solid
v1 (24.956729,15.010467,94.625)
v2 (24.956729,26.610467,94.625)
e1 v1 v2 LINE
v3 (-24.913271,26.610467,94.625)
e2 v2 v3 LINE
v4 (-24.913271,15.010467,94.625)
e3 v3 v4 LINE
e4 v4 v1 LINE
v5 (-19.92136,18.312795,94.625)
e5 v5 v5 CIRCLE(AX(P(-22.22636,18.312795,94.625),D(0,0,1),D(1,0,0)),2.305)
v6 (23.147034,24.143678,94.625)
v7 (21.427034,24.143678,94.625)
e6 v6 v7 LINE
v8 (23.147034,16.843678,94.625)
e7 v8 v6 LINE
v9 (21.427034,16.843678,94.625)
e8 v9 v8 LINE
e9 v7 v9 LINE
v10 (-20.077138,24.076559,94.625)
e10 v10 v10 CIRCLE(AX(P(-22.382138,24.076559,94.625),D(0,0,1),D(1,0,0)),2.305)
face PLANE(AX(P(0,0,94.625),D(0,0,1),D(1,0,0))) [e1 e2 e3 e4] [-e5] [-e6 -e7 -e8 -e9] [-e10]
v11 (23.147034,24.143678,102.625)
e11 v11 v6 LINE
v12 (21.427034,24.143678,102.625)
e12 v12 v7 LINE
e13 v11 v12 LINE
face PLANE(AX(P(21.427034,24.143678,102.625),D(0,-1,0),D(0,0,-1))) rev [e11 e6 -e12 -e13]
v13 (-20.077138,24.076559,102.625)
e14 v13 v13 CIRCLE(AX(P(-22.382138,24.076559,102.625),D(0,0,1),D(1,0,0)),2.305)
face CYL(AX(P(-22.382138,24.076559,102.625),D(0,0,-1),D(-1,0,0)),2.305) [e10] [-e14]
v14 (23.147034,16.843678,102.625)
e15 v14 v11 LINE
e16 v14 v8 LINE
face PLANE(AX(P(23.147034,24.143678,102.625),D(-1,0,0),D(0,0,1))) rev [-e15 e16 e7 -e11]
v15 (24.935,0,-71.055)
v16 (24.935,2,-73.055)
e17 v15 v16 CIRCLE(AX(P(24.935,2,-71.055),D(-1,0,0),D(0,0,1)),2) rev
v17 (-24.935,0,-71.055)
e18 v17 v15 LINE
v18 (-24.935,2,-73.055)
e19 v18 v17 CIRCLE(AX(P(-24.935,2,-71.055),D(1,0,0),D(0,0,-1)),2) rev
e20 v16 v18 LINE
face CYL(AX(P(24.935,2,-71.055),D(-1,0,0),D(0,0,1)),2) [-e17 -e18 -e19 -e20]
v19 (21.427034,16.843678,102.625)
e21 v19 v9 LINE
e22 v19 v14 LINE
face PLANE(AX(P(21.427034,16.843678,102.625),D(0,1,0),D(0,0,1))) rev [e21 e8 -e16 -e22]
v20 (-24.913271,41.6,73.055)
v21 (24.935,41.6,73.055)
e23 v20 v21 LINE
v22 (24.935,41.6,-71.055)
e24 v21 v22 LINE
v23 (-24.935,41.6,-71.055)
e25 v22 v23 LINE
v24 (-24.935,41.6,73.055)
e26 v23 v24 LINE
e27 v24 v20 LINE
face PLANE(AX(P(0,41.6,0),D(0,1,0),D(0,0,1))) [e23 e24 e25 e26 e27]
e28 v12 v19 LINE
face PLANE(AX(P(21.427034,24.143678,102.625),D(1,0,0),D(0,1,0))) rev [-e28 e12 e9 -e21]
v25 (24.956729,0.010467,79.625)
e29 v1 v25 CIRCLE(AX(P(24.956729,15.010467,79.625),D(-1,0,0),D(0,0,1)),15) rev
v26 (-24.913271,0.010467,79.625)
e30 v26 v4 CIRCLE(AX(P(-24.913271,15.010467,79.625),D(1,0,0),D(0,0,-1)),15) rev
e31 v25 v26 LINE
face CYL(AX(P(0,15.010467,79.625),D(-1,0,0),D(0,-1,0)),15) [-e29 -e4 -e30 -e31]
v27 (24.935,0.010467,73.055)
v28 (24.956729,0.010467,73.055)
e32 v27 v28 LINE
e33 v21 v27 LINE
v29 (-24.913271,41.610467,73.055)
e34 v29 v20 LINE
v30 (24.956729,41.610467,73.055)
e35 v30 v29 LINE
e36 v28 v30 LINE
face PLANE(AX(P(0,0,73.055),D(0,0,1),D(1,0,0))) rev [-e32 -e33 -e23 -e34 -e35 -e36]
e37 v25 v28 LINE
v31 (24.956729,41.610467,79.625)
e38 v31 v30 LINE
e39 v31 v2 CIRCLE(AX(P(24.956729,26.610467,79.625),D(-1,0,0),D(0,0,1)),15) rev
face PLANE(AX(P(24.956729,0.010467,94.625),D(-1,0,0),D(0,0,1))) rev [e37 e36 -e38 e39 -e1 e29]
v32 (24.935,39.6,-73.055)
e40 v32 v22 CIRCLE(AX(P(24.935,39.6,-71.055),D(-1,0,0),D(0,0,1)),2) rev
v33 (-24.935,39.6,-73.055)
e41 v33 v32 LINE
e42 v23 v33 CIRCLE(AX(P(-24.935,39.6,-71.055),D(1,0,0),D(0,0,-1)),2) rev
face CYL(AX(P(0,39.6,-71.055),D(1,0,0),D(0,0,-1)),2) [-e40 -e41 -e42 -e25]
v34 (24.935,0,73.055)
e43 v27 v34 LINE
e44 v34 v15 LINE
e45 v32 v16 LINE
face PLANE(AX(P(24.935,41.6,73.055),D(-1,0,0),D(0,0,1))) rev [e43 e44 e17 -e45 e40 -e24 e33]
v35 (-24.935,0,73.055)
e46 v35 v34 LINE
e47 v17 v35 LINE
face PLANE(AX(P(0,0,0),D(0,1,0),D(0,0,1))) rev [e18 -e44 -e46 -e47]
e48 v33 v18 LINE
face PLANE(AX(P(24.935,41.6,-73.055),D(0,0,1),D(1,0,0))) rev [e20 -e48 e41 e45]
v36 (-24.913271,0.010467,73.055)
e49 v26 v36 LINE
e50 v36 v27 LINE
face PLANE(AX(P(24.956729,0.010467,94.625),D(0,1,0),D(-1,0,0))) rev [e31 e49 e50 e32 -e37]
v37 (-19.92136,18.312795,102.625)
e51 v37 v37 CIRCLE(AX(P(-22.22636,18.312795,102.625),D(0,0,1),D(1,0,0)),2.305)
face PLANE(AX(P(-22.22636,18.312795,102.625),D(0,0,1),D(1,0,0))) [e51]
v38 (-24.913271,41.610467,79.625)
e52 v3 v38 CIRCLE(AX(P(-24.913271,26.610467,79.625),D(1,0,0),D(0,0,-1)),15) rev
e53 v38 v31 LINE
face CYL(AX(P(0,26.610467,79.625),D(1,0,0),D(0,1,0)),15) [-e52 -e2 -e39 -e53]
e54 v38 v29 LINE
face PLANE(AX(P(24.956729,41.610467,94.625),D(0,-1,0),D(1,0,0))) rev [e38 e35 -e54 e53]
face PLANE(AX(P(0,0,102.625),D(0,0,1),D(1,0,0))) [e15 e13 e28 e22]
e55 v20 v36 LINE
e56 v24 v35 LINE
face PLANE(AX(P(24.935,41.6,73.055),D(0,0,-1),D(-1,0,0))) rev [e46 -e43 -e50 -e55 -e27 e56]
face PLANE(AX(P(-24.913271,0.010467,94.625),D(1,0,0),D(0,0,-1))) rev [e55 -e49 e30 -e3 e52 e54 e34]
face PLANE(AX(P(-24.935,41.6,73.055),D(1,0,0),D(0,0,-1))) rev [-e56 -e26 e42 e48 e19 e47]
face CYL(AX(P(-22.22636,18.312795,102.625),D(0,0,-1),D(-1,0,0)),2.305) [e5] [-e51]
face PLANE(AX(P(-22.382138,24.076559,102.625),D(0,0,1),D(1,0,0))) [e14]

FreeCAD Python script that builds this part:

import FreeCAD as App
import Part
import Sketcher


def edges_at(feature, points):
    """Names of the edges that pass closest to the given points."""
    edges = feature.Shape.Edges
    near = lambda p: min(range(len(edges)), key=lambda i: edges[i].distToShape(Part.Vertex(*p))[0])
    return sorted({f"Edge{near(p) + 1}" for p in points})

doc = App.newDocument("Part")
body = doc.addObject("PartDesign::Body", "Body")

sketch1 = body.newObject("Sketcher::SketchObject", "Sketch")
sketch1.AttachmentSupport = (doc.getObject("XZ_Plane"), [""])
sketch1.MapMode = "FlatFace"
sketch1.addGeometry(Part.LineSegment(App.Vector(-25, -73, 0), App.Vector(-25, 73, 0)), False)
sketch1.addGeometry(Part.LineSegment(App.Vector(-25, 73, 0), App.Vector(25, 73, 0)), False)
sketch1.addGeometry(Part.LineSegment(App.Vector(25, 73, 0), App.Vector(25, -73, 0)), False)
sketch1.addGeometry(Part.LineSegment(App.Vector(25, -73, 0), App.Vector(-25, -73, 0)), False)
sketch1.addConstraint(Sketcher.Constraint("Coincident", 0, 2, 1, 1))
sketch1.addConstraint(Sketcher.Constraint("Coincident", 1, 2, 2, 1))
sketch1.addConstraint(Sketcher.Constraint("Coincident", 2, 2, 3, 1))
sketch1.addConstraint(Sketcher.Constraint("Coincident", 3, 2, 0, 1))
sketch1.addConstraint(Sketcher.Constraint("Vertical", 0))
sketch1.addConstraint(Sketcher.Constraint("Horizontal", 1))
sketch1.addConstraint(Sketcher.Constraint("Vertical", 2))
sketch1.addConstraint(Sketcher.Constraint("Horizontal", 3))
sketch1.addConstraint(Sketcher.Constraint("Symmetric", 0, 2, 2, 2, -1, 1))
sketch1.addConstraint(Sketcher.Constraint("DistanceX", 1, 1, 1, 2, 49.87))
sketch1.addConstraint(Sketcher.Constraint("DistanceY", 0, 1, 0, 2, 146.11))
pad1 = body.newObject("PartDesign::Pad", "Pad")
pad1.Profile = sketch1
pad1.Length = 41.6
pad1.Reversed = True

sketch2 = body.newObject("Sketcher::SketchObject", "Sketch001")
sketch2.AttachmentSupport = (doc.getObject("XY_Plane"), [""])
sketch2.MapMode = "FlatFace"
sketch2.AttachmentOffset = App.Placement(App.Vector(0, 0, 73.055), App.Rotation())
sketch2.addGeometry(Part.LineSegment(App.Vector(-25, 42, 0), App.Vector(-25, 0, 0)), False)
sketch2.addGeometry(Part.LineSegment(App.Vector(-25, 0, 0), App.Vector(25, 0, 0)), False)
sketch2.addGeometry(Part.LineSegment(App.Vector(25, 0, 0), App.Vector(25, 42, 0)), False)
sketch2.addGeometry(Part.LineSegment(App.Vector(25, 42, 0), App.Vector(-25, 42, 0)), False)
sketch2.addConstraint(Sketcher.Constraint("Coincident", 0, 2, 1, 1))
sketch2.addConstraint(Sketcher.Constraint("Coincident", 1, 2, 2, 1))
sketch2.addConstraint(Sketcher.Constraint("Coincident", 2, 2, 3, 1))
sketch2.addConstraint(Sketcher.Constraint("Coincident", 3, 2, 0, 1))
sketch2.addConstraint(Sketcher.Constraint("Vertical", 0))
sketch2.addConstraint(Sketcher.Constraint("Horizontal", 1))
sketch2.addConstraint(Sketcher.Constraint("Vertical", 2))
sketch2.addConstraint(Sketcher.Constraint("Horizontal", 3))
sketch2.addConstraint(Sketcher.Constraint("DistanceY", 0, 2, 0, 1, 41.6))
sketch2.addConstraint(Sketcher.Constraint("DistanceX", 1, 1, 1, 2, 49.87))
sketch2.addConstraint(Sketcher.Constraint("DistanceX", 0, 2, -1, 1, 24.913271))
sketch2.addConstraint(Sketcher.Constraint("DistanceY", -1, 1, 0, 2, 0.010467))
pad2 = body.newObject("PartDesign::Pad", "Pad001")
pad2.Profile = sketch2
pad2.Length = 21.57
doc.recompute()

fillet = body.newObject("PartDesign::Fillet", "Fillet")
fillet.Base = (pad2, edges_at(pad2, [(0.022, 0.01, 94.625), (0.022, 41.61, 94.625)]))
fillet.Radius = 15

sketch3 = body.newObject("Sketcher::SketchObject", "Sketch002")
sketch3.AttachmentSupport = (doc.getObject("XY_Plane"), [""])
sketch3.MapMode = "FlatFace"
sketch3.AttachmentOffset = App.Placement(App.Vector(0, 0, 94.625), App.Rotation())
sketch3.addGeometry(Part.Circle(App.Vector(-22.4, 24.1, 0), App.Vector(0, 0, 1), 2.3), False)
sketch3.addConstraint(Sketcher.Constraint("Diameter", 0, 4.61))
sketch3.addConstraint(Sketcher.Constraint("DistanceY", -1, 1, 0, 3, 24.076559))
sketch3.addConstraint(Sketcher.Constraint("DistanceX", 0, 3, -1, 1, 22.382138))
pad3 = body.newObject("PartDesign::Pad", "Pad002")
pad3.Profile = sketch3
pad3.Length = 8

sketch4 = body.newObject("Sketcher::SketchObject", "Sketch003")
sketch4.AttachmentSupport = (doc.getObject("XY_Plane"), [""])
sketch4.MapMode = "FlatFace"
sketch4.AttachmentOffset = App.Placement(App.Vector(0, 0, 94.625), App.Rotation())
sketch4.addGeometry(Part.Circle(App.Vector(-22.2, 18.3, 0), App.Vector(0, 0, 1), 2.3), False)
sketch4.addConstraint(Sketcher.Constraint("Diameter", 0, 4.61))
sketch4.addConstraint(Sketcher.Constraint("DistanceX", 0, 3, -1, 1, 22.22636))
sketch4.addConstraint(Sketcher.Constraint("DistanceY", -1, 1, 0, 3, 18.312795))
pad4 = body.newObject("PartDesign::Pad", "Pad003")
pad4.Profile = sketch4
pad4.Length = 8

sketch5 = body.newObject("Sketcher::SketchObject", "Sketch004")
sketch5.AttachmentSupport = (doc.getObject("XY_Plane"), [""])
sketch5.MapMode = "FlatFace"
sketch5.AttachmentOffset = App.Placement(App.Vector(0, 0, 94.625), App.Rotation())
sketch5.addGeometry(Part.LineSegment(App.Vector(21.4, 24.1, 0), App.Vector(21.4, 16.8, 0)), False)
sketch5.addGeometry(Part.LineSegment(App.Vector(21.4, 16.8, 0), App.Vector(23.1, 16.8, 0)), False)
sketch5.addGeometry(Part.LineSegment(App.Vector(23.1, 16.8, 0), App.Vector(23.1, 24.1, 0)), False)
sketch5.addGeometry(Part.LineSegment(App.Vector(23.1, 24.1, 0), App.Vector(21.4, 24.1, 0)), False)
sketch5.addConstraint(Sketcher.Constraint("Coincident", 0, 2, 1, 1))
sketch5.addConstraint(Sketcher.Constraint("Coincident", 1, 2, 2, 1))
sketch5.addConstraint(Sketcher.Constraint("Coincident", 2, 2, 3, 1))
sketch5.addConstraint(Sketcher.Constraint("Coincident", 3, 2, 0, 1))
sketch5.addConstraint(Sketcher.Constraint("Vertical", 0))
sketch5.addConstraint(Sketcher.Constraint("Horizontal", 1))
sketch5.addConstraint(Sketcher.Constraint("Vertical", 2))
sketch5.addConstraint(Sketcher.Constraint("Horizontal", 3))
sketch5.addConstraint(Sketcher.Constraint("DistanceY", 0, 2, 0, 1, 7.3))
sketch5.addConstraint(Sketcher.Constraint("DistanceX", 1, 1, 1, 2, 1.72))
sketch5.addConstraint(Sketcher.Constraint("DistanceY", -1, 1, 0, 2, 16.843678))
sketch5.addConstraint(Sketcher.Constraint("DistanceX", -1, 1, 0, 2, 21.427034))
pad5 = body.newObject("PartDesign::Pad", "Pad004")
pad5.Profile = sketch5
pad5.Length = 8
doc.recompute()

fillet2 = body.newObject("PartDesign::Fillet", "Fillet001")
fillet2.Base = (pad5, edges_at(pad5, [(0, 41.6, -73.055), (0, 0, -73.055)]))
fillet2.Radius = 2

doc.recompute()
